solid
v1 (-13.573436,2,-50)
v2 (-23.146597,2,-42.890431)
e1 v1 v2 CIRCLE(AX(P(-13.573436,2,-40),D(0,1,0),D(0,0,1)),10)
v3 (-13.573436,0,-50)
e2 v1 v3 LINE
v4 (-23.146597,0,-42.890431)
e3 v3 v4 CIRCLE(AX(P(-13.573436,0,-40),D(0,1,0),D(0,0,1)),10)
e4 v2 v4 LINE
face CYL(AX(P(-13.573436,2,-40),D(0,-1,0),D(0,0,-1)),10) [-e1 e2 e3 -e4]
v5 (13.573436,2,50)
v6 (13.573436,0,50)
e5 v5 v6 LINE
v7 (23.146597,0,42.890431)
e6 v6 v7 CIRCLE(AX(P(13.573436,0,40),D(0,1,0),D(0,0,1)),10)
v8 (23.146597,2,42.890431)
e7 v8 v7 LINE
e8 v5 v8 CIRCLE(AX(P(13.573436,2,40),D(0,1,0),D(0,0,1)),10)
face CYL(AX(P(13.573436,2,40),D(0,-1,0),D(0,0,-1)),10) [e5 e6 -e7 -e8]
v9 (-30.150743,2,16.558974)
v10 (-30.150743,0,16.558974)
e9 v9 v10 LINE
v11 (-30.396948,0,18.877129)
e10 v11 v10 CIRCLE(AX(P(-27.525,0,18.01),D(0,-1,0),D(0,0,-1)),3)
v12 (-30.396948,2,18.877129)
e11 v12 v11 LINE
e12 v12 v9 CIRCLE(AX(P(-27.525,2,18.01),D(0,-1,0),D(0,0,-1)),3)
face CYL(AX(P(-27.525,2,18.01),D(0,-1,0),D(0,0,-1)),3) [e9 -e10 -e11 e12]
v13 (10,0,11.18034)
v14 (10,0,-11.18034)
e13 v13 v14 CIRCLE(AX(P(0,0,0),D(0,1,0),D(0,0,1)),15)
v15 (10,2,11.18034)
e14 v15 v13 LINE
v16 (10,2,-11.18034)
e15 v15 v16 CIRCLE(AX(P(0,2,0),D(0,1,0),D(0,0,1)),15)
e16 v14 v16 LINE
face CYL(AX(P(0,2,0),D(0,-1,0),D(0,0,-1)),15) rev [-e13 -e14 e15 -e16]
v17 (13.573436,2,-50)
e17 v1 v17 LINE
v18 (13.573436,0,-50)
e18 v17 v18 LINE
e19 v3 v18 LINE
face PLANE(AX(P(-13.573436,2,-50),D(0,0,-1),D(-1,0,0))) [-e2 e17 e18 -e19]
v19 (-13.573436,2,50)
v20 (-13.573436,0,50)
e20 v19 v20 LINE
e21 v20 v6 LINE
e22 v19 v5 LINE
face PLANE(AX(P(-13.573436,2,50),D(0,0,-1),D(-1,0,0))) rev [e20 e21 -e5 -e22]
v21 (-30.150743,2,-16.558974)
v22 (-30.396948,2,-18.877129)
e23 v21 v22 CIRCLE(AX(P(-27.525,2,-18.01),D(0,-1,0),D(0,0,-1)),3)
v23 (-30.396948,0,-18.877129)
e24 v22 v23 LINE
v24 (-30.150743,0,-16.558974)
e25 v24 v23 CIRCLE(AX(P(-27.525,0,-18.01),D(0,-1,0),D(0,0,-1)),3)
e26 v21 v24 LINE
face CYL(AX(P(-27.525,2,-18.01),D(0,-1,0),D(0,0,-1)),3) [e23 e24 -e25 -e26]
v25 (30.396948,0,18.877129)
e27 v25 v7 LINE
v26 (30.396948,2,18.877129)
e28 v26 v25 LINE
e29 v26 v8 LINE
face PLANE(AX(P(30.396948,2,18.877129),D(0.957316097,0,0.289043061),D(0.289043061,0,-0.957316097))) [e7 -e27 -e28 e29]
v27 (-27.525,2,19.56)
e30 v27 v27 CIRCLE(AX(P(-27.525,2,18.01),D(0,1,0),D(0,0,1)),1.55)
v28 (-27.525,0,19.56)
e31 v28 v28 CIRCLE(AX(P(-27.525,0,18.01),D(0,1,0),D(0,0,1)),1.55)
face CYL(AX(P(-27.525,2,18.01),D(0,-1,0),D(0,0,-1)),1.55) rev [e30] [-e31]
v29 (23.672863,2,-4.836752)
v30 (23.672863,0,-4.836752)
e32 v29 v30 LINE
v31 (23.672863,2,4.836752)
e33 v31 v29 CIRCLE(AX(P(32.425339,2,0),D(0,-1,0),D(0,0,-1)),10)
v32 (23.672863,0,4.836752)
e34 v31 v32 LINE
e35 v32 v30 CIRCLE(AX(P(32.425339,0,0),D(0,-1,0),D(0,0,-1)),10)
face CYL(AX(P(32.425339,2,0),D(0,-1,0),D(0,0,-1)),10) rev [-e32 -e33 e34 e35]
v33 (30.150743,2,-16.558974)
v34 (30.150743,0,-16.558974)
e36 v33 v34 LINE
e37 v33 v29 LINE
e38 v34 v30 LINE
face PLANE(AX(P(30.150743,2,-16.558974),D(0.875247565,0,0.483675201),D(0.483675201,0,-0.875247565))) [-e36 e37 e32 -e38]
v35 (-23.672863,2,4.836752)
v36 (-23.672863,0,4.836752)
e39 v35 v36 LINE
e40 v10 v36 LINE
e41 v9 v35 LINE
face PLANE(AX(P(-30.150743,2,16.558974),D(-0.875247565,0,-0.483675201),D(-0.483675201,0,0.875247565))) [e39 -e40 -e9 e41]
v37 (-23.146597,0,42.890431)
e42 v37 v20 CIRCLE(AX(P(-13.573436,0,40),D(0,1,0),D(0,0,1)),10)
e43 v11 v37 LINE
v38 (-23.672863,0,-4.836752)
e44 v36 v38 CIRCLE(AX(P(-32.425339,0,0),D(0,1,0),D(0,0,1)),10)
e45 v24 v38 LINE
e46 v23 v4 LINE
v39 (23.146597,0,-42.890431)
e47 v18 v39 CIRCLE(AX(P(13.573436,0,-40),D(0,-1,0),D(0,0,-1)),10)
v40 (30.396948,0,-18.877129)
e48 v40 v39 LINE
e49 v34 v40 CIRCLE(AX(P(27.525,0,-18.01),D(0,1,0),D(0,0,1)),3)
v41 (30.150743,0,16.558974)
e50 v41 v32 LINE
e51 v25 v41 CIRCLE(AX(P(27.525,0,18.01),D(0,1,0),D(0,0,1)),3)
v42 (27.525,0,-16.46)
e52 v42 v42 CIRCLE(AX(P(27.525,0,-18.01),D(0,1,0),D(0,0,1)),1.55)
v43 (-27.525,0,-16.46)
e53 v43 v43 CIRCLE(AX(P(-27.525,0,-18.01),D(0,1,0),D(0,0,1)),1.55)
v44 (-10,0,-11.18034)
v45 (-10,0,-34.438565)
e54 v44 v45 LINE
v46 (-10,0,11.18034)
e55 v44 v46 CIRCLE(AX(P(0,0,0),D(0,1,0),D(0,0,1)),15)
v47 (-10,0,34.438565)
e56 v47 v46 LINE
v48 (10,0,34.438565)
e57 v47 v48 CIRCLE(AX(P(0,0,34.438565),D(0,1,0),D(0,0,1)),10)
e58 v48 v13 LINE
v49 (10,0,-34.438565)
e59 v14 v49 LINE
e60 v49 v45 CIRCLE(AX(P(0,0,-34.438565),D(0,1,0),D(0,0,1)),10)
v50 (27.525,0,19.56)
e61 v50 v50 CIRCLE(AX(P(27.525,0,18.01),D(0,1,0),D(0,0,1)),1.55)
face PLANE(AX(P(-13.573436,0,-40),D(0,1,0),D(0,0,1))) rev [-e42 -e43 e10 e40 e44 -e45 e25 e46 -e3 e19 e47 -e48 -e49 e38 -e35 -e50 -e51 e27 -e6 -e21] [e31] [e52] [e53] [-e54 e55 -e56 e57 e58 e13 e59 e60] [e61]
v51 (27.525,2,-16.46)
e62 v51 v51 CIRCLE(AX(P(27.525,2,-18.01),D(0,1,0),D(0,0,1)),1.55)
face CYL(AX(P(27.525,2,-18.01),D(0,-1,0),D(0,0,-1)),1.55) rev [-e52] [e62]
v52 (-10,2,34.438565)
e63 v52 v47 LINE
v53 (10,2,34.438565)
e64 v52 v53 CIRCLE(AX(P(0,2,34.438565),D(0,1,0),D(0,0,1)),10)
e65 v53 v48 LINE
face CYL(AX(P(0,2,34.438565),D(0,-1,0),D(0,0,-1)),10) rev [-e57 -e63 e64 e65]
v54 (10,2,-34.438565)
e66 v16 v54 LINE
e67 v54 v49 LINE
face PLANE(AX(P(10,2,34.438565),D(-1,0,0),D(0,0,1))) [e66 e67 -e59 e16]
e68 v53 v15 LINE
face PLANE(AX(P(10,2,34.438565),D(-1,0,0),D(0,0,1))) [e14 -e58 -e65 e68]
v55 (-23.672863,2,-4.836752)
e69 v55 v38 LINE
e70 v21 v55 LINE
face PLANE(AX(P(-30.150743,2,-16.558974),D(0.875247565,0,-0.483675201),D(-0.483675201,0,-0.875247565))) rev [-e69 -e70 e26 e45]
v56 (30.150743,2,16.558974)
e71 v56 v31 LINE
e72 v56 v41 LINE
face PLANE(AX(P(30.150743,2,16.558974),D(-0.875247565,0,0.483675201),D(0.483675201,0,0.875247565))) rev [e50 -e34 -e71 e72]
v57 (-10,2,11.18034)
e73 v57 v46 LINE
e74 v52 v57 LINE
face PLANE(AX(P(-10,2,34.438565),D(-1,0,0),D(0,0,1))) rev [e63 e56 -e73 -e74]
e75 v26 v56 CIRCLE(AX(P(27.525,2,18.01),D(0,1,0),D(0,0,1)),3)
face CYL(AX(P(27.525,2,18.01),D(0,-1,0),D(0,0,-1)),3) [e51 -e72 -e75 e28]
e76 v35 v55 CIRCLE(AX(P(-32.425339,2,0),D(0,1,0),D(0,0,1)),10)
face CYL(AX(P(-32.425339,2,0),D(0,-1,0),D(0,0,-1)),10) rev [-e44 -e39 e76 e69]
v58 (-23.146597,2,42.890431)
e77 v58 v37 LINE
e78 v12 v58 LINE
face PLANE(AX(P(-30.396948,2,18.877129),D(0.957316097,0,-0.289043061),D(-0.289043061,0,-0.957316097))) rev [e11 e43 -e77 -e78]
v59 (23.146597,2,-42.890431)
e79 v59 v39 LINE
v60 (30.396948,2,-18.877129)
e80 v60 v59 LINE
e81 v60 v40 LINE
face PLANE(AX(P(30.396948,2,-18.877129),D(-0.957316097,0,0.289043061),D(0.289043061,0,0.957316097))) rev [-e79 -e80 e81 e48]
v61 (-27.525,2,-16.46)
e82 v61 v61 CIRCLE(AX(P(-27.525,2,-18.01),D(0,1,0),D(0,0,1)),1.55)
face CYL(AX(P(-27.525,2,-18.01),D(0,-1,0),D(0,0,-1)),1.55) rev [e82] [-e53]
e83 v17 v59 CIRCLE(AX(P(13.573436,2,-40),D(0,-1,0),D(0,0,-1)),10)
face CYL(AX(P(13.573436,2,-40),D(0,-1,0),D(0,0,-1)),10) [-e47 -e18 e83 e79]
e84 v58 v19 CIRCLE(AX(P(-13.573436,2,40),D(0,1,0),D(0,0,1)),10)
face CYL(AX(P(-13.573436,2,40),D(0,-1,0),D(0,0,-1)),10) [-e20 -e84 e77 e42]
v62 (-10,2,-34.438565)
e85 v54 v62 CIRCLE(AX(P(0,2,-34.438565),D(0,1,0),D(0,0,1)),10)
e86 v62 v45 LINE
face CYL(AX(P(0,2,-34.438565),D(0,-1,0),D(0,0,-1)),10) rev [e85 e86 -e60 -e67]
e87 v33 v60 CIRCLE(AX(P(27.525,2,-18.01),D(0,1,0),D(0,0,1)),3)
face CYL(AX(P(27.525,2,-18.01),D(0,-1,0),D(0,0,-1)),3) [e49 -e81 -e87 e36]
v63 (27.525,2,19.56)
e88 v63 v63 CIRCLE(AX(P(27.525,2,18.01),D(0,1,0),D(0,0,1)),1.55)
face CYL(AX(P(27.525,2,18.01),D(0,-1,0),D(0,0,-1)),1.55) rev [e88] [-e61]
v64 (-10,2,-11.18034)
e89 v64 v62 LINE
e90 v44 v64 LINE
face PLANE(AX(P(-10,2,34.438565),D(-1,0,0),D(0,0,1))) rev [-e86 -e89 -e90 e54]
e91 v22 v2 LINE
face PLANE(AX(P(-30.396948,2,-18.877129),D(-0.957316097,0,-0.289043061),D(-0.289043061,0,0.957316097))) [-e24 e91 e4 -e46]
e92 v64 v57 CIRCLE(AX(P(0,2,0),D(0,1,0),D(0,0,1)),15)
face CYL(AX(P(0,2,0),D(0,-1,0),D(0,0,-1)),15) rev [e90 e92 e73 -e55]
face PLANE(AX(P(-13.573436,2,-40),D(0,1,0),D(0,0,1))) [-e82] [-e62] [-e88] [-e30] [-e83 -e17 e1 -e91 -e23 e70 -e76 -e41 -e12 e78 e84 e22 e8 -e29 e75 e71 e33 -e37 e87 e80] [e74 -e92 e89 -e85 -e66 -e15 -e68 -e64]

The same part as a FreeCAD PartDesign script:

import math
import FreeCAD as App
import Part
import Sketcher

V = App.Vector

doc = App.newDocument("Part")
body = doc.addObject("PartDesign::Body", "Body")

# Sketch on XZ plane
sketch1 = doc.addObject("Sketcher::SketchObject", "Sketch")
body.addObject(sketch1)
sketch1.AttachmentSupport = (doc.XZ_Plane, [""])
sketch1.MapMode = "FlatFace"
sketch1.addGeometry([
    Part.ArcOfCircle(Part.Circle(V(-13.573436, 40, 0), V(0, 0, 1), 10), math.radians(90), math.radians(163.199326)),  # 0
    Part.LineSegment(V(-13.573436, 50, 0), V(13.573436, 50, 0)),  # 1
    Part.ArcOfCircle(Part.Circle(V(13.573436, 40, 0), V(0, 0, 1), 10), math.radians(16.800674), math.radians(90)),  # 2
    Part.LineSegment(V(23.146597, 42.890431, 0), V(30.396948, 18.877129, 0)),  # 3
    Part.ArcOfCircle(Part.Circle(V(27.525, 18.01, 0), V(0, 0, 1), 3), math.radians(-28.925712), math.radians(16.800674)),  # 4
    Part.LineSegment(V(30.150743, 16.558974, 0), V(23.672863, 4.836752, 0)),  # 5
    Part.ArcOfCircle(Part.Circle(V(32.425339, 0, 0), V(0, 0, 1), 10), math.radians(151.074288), math.radians(208.925712)),  # 6
    Part.LineSegment(V(23.672863, -4.836752, 0), V(30.150743, -16.558974, 0)),  # 7
    Part.ArcOfCircle(Part.Circle(V(27.525, -18.01, 0), V(0, 0, 1), 3), math.radians(-16.800674), math.radians(28.925712)),  # 8
    Part.LineSegment(V(30.396948, -18.877129, 0), V(23.146597, -42.890431, 0)),  # 9
    Part.ArcOfCircle(Part.Circle(V(13.573436, -40, 0), V(0, 0, 1), 10), math.radians(-90), math.radians(-16.800674)),  # 10
    Part.LineSegment(V(13.573436, -50, 0), V(-13.573436, -50, 0)),  # 11
    Part.ArcOfCircle(Part.Circle(V(-13.573436, -40, 0), V(0, 0, 1), 10), math.radians(-163.199326), math.radians(-90)),  # 12
    Part.LineSegment(V(-23.146597, -42.890431, 0), V(-30.396948, -18.877129, 0)),  # 13
    Part.ArcOfCircle(Part.Circle(V(-27.525, -18.01, 0), V(0, 0, 1), 3), math.radians(151.074288), math.radians(196.800674)),  # 14
    Part.LineSegment(V(-30.150743, -16.558974, 0), V(-23.672863, -4.836752, 0)),  # 15
    Part.ArcOfCircle(Part.Circle(V(-32.425339, 0, 0), V(0, 0, 1), 10), math.radians(-28.925712), math.radians(28.925712)),  # 16
    Part.LineSegment(V(-23.672863, 4.836752, 0), V(-30.150743, 16.558974, 0)),  # 17
    Part.ArcOfCircle(Part.Circle(V(-27.525, 18.01, 0), V(0, 0, 1), 3), math.radians(163.199326), math.radians(208.925712)),  # 18
    Part.LineSegment(V(-30.396948, 18.877129, 0), V(-23.146597, 42.890431, 0)),  # 19
    Part.Circle(V(-27.525, 18.01, 0), V(0, 0, 1), 1.55),  # 20
    Part.Circle(V(27.525, 18.01, 0), V(0, 0, 1), 1.55),  # 21
    Part.Circle(V(-27.525, -18.01, 0), V(0, 0, 1), 1.55),  # 22
    Part.LineSegment(V(10, 11.18034, 0), V(10, 34.438565, 0)),  # 23
    Part.ArcOfCircle(Part.Circle(V(0, 34.438565, 0), V(0, 0, 1), 10), math.radians(0), math.radians(180)),  # 24
    Part.LineSegment(V(-10, 34.438565, 0), V(-10, 11.18034, 0)),  # 25
    Part.ArcOfCircle(Part.Circle(V(0, 0, 0), V(0, 0, 1), 15), math.radians(131.810315), math.radians(228.189685)),  # 26
    Part.LineSegment(V(-10, -11.18034, 0), V(-10, -34.438565, 0)),  # 27
    Part.ArcOfCircle(Part.Circle(V(0, -34.438565, 0), V(0, 0, 1), 10), math.radians(180), math.radians(360)),  # 28
    Part.LineSegment(V(10, -34.438565, 0), V(10, -11.18034, 0)),  # 29
    Part.ArcOfCircle(Part.Circle(V(0, 0, 0), V(0, 0, 1), 15), math.radians(-48.189685), math.radians(48.189685)),  # 30
    Part.Circle(V(27.525, -18.01, 0), V(0, 0, 1), 1.55),  # 31
], False)
sketch1.addConstraint([
    Sketcher.Constraint("Tangent", 0, 1, 1, 1),
    Sketcher.Constraint("Tangent", 1, 2, 2, 2),
    Sketcher.Constraint("Tangent", 2, 1, 3, 1),
    Sketcher.Constraint("Tangent", 3, 2, 4, 2),
    Sketcher.Constraint("Tangent", 4, 1, 5, 1),
    Sketcher.Constraint("Tangent", 5, 2, 6, 1),
    Sketcher.Constraint("Tangent", 6, 2, 7, 1),
    Sketcher.Constraint("Tangent", 7, 2, 8, 2),
    Sketcher.Constraint("Tangent", 8, 1, 9, 1),
    Sketcher.Constraint("Tangent", 9, 2, 10, 2),
    Sketcher.Constraint("Tangent", 10, 1, 11, 1),
    Sketcher.Constraint("Tangent", 11, 2, 12, 2),
    Sketcher.Constraint("Tangent", 12, 1, 13, 1),
    Sketcher.Constraint("Tangent", 13, 2, 14, 2),
    Sketcher.Constraint("Tangent", 14, 1, 15, 1),
    Sketcher.Constraint("Tangent", 15, 2, 16, 1),
    Sketcher.Constraint("Tangent", 16, 2, 17, 1),
    Sketcher.Constraint("Tangent", 17, 2, 18, 2),
    Sketcher.Constraint("Tangent", 18, 1, 19, 1),
    Sketcher.Constraint("Tangent", 19, 2, 0, 2),
    Sketcher.Constraint("Tangent", 23, 2, 24, 1),
    Sketcher.Constraint("Tangent", 24, 2, 25, 1),
    Sketcher.Constraint("Coincident", 25, 2, 26, 1),
    Sketcher.Constraint("Coincident", 26, 2, 27, 1),
    Sketcher.Constraint("Tangent", 27, 2, 28, 1),
    Sketcher.Constraint("Tangent", 28, 2, 29, 1),
    Sketcher.Constraint("Coincident", 29, 2, 30, 1),
    Sketcher.Constraint("Coincident", 30, 2, 23, 1),
    Sketcher.Constraint("Horizontal", 1),
    Sketcher.Constraint("Horizontal", 11),
    Sketcher.Constraint("Vertical", 23),
    Sketcher.Constraint("Vertical", 25),
    Sketcher.Constraint("Vertical", 27),
    Sketcher.Constraint("Vertical", 29),
    Sketcher.Constraint("Coincident", 26, 3, -1, 1),
    Sketcher.Constraint("Coincident", 30, 3, -1, 1),
    Sketcher.Constraint("Coincident", 20, 3, 18, 3),
    Sketcher.Constraint("Coincident", 21, 3, 4, 3),
    Sketcher.Constraint("Coincident", 22, 3, 14, 3),
    Sketcher.Constraint("Coincident", 31, 3, 8, 3),
    Sketcher.Constraint("Equal", 0, 2),
    Sketcher.Constraint("Equal", 2, 6),
    Sketcher.Constraint("Equal", 4, 8),
    Sketcher.Constraint("Equal", 6, 10),
    Sketcher.Constraint("Equal", 10, 12),
    Sketcher.Constraint("Equal", 8, 14),
    Sketcher.Constraint("Equal", 12, 16),
    Sketcher.Constraint("Equal", 14, 18),
    Sketcher.Constraint("Equal", 20, 21),
    Sketcher.Constraint("Equal", 21, 22),
    Sketcher.Constraint("Equal", 16, 24),
    Sketcher.Constraint("Equal", 24, 28),
    Sketcher.Constraint("Equal", 26, 30),
    Sketcher.Constraint("Equal", 22, 31),
    Sketcher.Constraint("Symmetric", 0, 3, 10, 3, -1, 1),
    Sketcher.Constraint("Symmetric", 4, 3, 14, 3, -1, 1),
    Sketcher.Constraint("Symmetric", 6, 3, 16, 3, -1, 1),
    Sketcher.Constraint("Symmetric", 8, 3, 18, 3, -1, 1),
    Sketcher.Constraint("Symmetric", 24, 3, 28, 3, -1, 1),
    Sketcher.Constraint("Symmetric", 8, 3, 14, 3, -2),
    Sketcher.Constraint("PointOnObject", 6, 3, -1),
    Sketcher.Constraint("PointOnObject", 24, 3, -2),
    Sketcher.Constraint("Parallel", 3, 13),
    Sketcher.Constraint("Horizontal", 9, 2, 12, 1),
    Sketcher.Constraint("Radius", 0, 10.0),
    Sketcher.Constraint("Radius", 4, 3.0),
    Sketcher.Constraint("Radius", 26, 15.0),
    Sketcher.Constraint("Diameter", 20, 3.1),
    Sketcher.Constraint("DistanceY", -1, 1, 0, 3, 40.0),
    Sketcher.Constraint("DistanceY", -1, 1, 4, 3, 18.01),
    Sketcher.Constraint("DistanceX", 14, 3, 8, 3, 55.05),
    Sketcher.Constraint("DistanceX", 1, 1, 1, 2, 27.146872),
    Sketcher.Constraint("DistanceY", 23, 1, 23, 2, 23.258225),
    Sketcher.Constraint("DistanceX", -1, 1, 6, 3, 32.425339),
])
pad1 = doc.addObject("PartDesign::Pad", "Pad")
body.addObject(pad1)
pad1.Profile = sketch1
pad1.Length = 2
pad1.Reversed = True

doc.recompute()
